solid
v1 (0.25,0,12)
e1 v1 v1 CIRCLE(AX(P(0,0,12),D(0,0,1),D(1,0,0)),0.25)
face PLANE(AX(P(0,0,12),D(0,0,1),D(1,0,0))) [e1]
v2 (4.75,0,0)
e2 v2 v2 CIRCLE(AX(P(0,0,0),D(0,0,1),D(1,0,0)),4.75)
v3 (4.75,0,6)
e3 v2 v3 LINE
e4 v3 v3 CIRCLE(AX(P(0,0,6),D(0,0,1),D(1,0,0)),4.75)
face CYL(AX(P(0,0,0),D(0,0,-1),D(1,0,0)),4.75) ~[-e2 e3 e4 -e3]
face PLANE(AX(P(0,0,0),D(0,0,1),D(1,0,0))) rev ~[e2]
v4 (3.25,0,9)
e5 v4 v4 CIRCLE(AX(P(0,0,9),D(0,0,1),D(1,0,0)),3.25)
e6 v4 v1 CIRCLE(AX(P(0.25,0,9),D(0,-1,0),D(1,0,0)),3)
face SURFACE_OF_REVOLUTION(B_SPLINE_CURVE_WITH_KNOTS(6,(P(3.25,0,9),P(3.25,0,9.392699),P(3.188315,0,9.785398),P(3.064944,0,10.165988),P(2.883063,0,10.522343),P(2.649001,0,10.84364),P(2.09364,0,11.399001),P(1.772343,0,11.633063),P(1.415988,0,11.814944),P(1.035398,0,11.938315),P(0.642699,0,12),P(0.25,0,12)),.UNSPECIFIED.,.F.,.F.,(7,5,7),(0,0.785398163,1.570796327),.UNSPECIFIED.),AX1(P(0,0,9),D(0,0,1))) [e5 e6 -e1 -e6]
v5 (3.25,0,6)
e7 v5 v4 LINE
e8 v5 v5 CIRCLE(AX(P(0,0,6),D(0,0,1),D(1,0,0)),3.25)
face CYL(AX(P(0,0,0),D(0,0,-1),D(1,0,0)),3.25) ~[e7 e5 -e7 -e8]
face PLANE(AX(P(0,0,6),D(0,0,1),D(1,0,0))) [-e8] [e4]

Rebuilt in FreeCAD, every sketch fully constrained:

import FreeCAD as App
import Part
import Sketcher
from FreeCAD import Vector
Q = App.Units.Quantity


def edges_at(feature, points):
    """Names of the edges that pass closest to the given points."""
    edges = feature.Shape.Edges
    near = lambda p: min(range(len(edges)), key=lambda i: edges[i].distToShape(Part.Vertex(*p))[0])
    return sorted({f"Edge{near(p) + 1}" for p in points})

doc = App.newDocument("Part")
body = doc.addObject("PartDesign::Body", "Body")

# Sketch on XY plane
sketch1 = body.newObject("Sketcher::SketchObject", "Sketch")
sketch1.AttachmentSupport = (doc.getObject("XY_Plane"), [""])
sketch1.MapMode = "FlatFace"
sketch1.addGeometry(Part.Circle(Vector(0, 0, 0), Vector(0, 0, 1), 3.2), False)
sketch1.addConstraint([
    Sketcher.Constraint("Coincident", 0, 3, -1, 1),
    Sketcher.Constraint("Diameter", 0, Q("6.5 mm")),
])
pad1 = body.newObject("PartDesign::Pad", "Pad")
pad1.Profile = sketch1
pad1.Length = 12

# Sketch on XY plane
sketch2 = body.newObject("Sketcher::SketchObject", "Sketch001")
sketch2.AttachmentSupport = (doc.getObject("XY_Plane"), [""])
sketch2.MapMode = "FlatFace"
sketch2.addGeometry([
    Part.Circle(Vector(0, 0, 0), Vector(0, 0, 1), 4.8),
    Part.Circle(Vector(0, 0, 0), Vector(0, 0, 1), 3.2),
], False)
sketch2.addConstraint([
    Sketcher.Constraint("Coincident", 0, 3, -1, 1),
    Sketcher.Constraint("Coincident", 1, 3, -1, 1),
    Sketcher.Constraint("Diameter", 0, Q("9.5 mm")),
    Sketcher.Constraint("Diameter", 1, Q("6.5 mm")),
])
pad2 = body.newObject("PartDesign::Pad", "Pad001")
pad2.Profile = sketch2
pad2.Length = 6
doc.recompute()

fillet = body.newObject("PartDesign::Fillet", "Fillet")
fillet.Base = (pad2, edges_at(pad2, [(-3.25, 0, 12)]))
fillet.Radius = 3

doc.recompute()
